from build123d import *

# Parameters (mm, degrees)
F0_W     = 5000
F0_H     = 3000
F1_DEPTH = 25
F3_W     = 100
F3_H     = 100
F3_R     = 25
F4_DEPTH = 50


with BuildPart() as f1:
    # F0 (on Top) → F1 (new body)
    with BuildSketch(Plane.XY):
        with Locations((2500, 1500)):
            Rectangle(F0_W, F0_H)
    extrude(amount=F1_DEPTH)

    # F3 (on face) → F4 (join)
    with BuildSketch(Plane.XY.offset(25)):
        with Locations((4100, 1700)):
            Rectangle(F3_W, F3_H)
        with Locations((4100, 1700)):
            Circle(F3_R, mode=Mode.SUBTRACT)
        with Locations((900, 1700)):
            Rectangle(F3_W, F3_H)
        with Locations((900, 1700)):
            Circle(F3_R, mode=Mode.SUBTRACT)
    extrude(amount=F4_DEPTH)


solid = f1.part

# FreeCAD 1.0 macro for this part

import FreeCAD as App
import Part
import Sketcher
from FreeCAD import Vector
Q = App.Units.Quantity

doc = App.newDocument("Part")
body = doc.addObject("PartDesign::Body", "Body")

sketch1 = body.newObject("Sketcher::SketchObject", "Sketch")
sketch1.AttachmentSupport = (doc.getObject("XY_Plane"), [""])
sketch1.MapMode = "FlatFace"
sketch1.addGeometry([
    Part.LineSegment(Vector(0, 3000, 0), Vector(0, 0, 0)),
    Part.LineSegment(Vector(0, 0, 0), Vector(5000, 0, 0)),
    Part.LineSegment(Vector(5000, 0, 0), Vector(5000, 3000, 0)),
    Part.LineSegment(Vector(5000, 3000, 0), Vector(0, 3000, 0)),
], False)
sketch1.addConstraint([
    Sketcher.Constraint("Coincident", 0, 2, 1, 1),
    Sketcher.Constraint("Coincident", 1, 2, 2, 1),
    Sketcher.Constraint("Coincident", 2, 2, 3, 1),
    Sketcher.Constraint("Coincident", 3, 2, 0, 1),
    Sketcher.Constraint("Vertical", 0),
    Sketcher.Constraint("Horizontal", 1),
    Sketcher.Constraint("Vertical", 2),
    Sketcher.Constraint("Horizontal", 3),
    Sketcher.Constraint("Coincident", 0, 2, -1, 1),
    Sketcher.Constraint("DistanceX", 1, 1, 1, 2, Q("5000 mm")),
    Sketcher.Constraint("DistanceY", 0, 2, 0, 1, Q("3000 mm")),
])
pad1 = body.newObject("PartDesign::Pad", "Pad")
pad1.Profile = sketch1
pad1.Length = 25

sketch2 = body.newObject("Sketcher::SketchObject", "Sketch001")
sketch2.AttachmentSupport = (doc.getObject("XY_Plane"), [""])
sketch2.MapMode = "FlatFace"
sketch2.AttachmentOffset = App.Placement(Vector(0, 0, 25), App.Rotation())
sketch2.addGeometry([
    Part.LineSegment(Vector(4050, 1750, 0), Vector(4050, 1650, 0)),
    Part.LineSegment(Vector(4050, 1650, 0), Vector(4150, 1650, 0)),
    Part.LineSegment(Vector(4150, 1650, 0), Vector(4150, 1750, 0)),
    Part.LineSegment(Vector(4150, 1750, 0), Vector(4050, 1750, 0)),
    Part.Circle(Vector(4100, 1700, 0), Vector(0, 0, 1), 25),
    Part.LineSegment(Vector(850, 1750, 0), Vector(850, 1650, 0)),
    Part.LineSegment(Vector(850, 1650, 0), Vector(950, 1650, 0)),
    Part.LineSegment(Vector(950, 1650, 0), Vector(950, 1750, 0)),
    Part.LineSegment(Vector(950, 1750, 0), Vector(850, 1750, 0)),
    Part.Circle(Vector(900, 1700, 0), Vector(0, 0, 1), 25),
], False)
sketch2.addConstraint([
    Sketcher.Constraint("Coincident", 0, 2, 1, 1),
    Sketcher.Constraint("Coincident", 1, 2, 2, 1),
    Sketcher.Constraint("Coincident", 2, 2, 3, 1),
    Sketcher.Constraint("Coincident", 3, 2, 0, 1),
    Sketcher.Constraint("Coincident", 5, 2, 6, 1),
    Sketcher.Constraint("Coincident", 6, 2, 7, 1),
    Sketcher.Constraint("Coincident", 7, 2, 8, 1),
    Sketcher.Constraint("Coincident", 8, 2, 5, 1),
    Sketcher.Constraint("Vertical", 0),
    Sketcher.Constraint("Horizontal", 1),
    Sketcher.Constraint("Vertical", 2),
    Sketcher.Constraint("Horizontal", 3),
    Sketcher.Constraint("Vertical", 5),
    Sketcher.Constraint("Horizontal", 6),
    Sketcher.Constraint("Vertical", 7),
    Sketcher.Constraint("Horizontal", 8),
    Sketcher.Constraint("Equal", 4, 9),
    Sketcher.Constraint("Horizontal", 4, 3, 9, 3),
    Sketcher.Constraint("Horizontal", 1, 2, 5, 2),
    Sketcher.Constraint("Horizontal", 3, 2, 7, 2),
    Sketcher.Constraint("Equal", 3, 6),
    Sketcher.Constraint("Equal", 8, 0),
    Sketcher.Constraint("Diameter", 4, Q("50 mm")),
    Sketcher.Constraint("DistanceX", 1, 1, 1, 2, Q("100 mm")),
    Sketcher.Constraint("DistanceX", -1, 1, 4, 3, Q("4100 mm")),
    Sketcher.Constraint("DistanceY", -1, 1, 4, 3, Q("1700 mm")),
    Sketcher.Constraint("DistanceX", -1, 1, 9, 3, Q("900 mm")),
    Sketcher.Constraint("DistanceX", -1, 1, 0, 2, Q("4050 mm")),
    Sketcher.Constraint("DistanceY", -1, 1, 0, 2, Q("1650 mm")),
    Sketcher.Constraint("DistanceX", -1, 1, 5, 2, Q("850 mm")),
])
pad2 = body.newObject("PartDesign::Pad", "Pad001")
pad2.Profile = sketch2
pad2.Length = 50

doc.recompute()
